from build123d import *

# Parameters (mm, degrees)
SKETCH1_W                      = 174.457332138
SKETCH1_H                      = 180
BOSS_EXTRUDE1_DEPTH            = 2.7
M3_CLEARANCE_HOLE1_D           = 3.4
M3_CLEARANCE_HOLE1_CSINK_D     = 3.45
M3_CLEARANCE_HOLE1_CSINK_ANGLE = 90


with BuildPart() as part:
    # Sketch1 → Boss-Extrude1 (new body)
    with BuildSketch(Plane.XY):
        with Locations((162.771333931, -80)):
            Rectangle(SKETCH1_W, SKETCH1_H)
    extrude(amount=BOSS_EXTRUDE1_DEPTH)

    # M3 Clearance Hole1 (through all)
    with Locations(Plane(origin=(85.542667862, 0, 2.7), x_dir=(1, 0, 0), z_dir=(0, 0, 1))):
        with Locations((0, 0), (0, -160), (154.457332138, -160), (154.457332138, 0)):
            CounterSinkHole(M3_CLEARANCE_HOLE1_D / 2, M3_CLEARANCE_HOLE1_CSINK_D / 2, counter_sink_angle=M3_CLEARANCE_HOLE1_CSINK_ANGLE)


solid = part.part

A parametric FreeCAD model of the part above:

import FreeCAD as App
import Part
import Sketcher
from FreeCAD import Vector
Q = App.Units.Quantity


def add_polygon(sketch, points):
    """Adds a closed chain of lines whose ends are joined by coincident constraints."""
    first, n = sketch.GeometryCount, len(points)
    for a, b in zip(points, points[1:] + points[:1]):
        sketch.addGeometry(Part.LineSegment(App.Vector(*a, 0), App.Vector(*b, 0)), False)
    for i in range(n):
        sketch.addConstraint(Sketcher.Constraint("Coincident", first + i, 2, first + (i + 1) % n, 1))

doc = App.newDocument("Part")
body = doc.addObject("PartDesign::Body", "Body")

# Sketch on XY plane
sketch1 = body.newObject("Sketcher::SketchObject", "Sketch")
sketch1.AttachmentSupport = (doc.getObject("XY_Plane"), [""])
sketch1.MapMode = "FlatFace"
add_polygon(sketch1, [(76, 10), (76, -170), (250, -170), (250, 10)])  # lines 0-3
sketch1.addConstraint(Sketcher.Constraint("Vertical", 0))
sketch1.addConstraint(Sketcher.Constraint("Horizontal", 1))
sketch1.addConstraint(Sketcher.Constraint("Vertical", 2))
sketch1.addConstraint(Sketcher.Constraint("Horizontal", 3))
sketch1.addConstraint(Sketcher.Constraint("DistanceY", 0, 2, 0, 1, Q("180 mm")))
sketch1.addConstraint(Sketcher.Constraint("DistanceY", 0, 2, -1, 1, Q("170 mm")))
sketch1.addConstraint(Sketcher.Constraint("DistanceX", -1, 1, 1, 2, Q("250 mm")))
sketch1.addConstraint(Sketcher.Constraint("DistanceX", 1, 1, 1, 2, Q("174.457332 mm")))
pad1 = body.newObject("PartDesign::Pad", "Pad")
pad1.Profile = sketch1
pad1.Length = 2.7

# Sketch on XY plane
sketch2 = body.newObject("Sketcher::SketchObject", "Sketch001")
sketch2.AttachmentSupport = (doc.getObject("XY_Plane"), [""])
sketch2.MapMode = "FlatFace"
sketch2.AttachmentOffset = App.Placement(Vector(0, 0, 2.7), App.Rotation())
sketch2.addGeometry(Part.Circle(Vector(85.5, 0, 0), Vector(0, 0, 1), 1.7), False)
sketch2.addGeometry(Part.Circle(Vector(85.5, -160, 0), Vector(0, 0, 1), 1.7), False)
sketch2.addGeometry(Part.Circle(Vector(240, -160, 0), Vector(0, 0, 1), 1.7), False)
sketch2.addGeometry(Part.Circle(Vector(240, 0, 0), Vector(0, 0, 1), 1.7), False)
sketch2.addConstraint(Sketcher.Constraint("Equal", 0, 1))
sketch2.addConstraint(Sketcher.Constraint("Equal", 1, 2))
sketch2.addConstraint(Sketcher.Constraint("Equal", 2, 3))
sketch2.addConstraint(Sketcher.Constraint("PointOnObject", 0, 3, -1))
sketch2.addConstraint(Sketcher.Constraint("PointOnObject", 3, 3, -1))
sketch2.addConstraint(Sketcher.Constraint("Horizontal", 1, 3, 2, 3))
sketch2.addConstraint(Sketcher.Constraint("Vertical", 0, 3, 1, 3))
sketch2.addConstraint(Sketcher.Constraint("Vertical", 2, 3, 3, 3))
sketch2.addConstraint(Sketcher.Constraint("Diameter", 0, Q("3.4 mm")))
sketch2.addConstraint(Sketcher.Constraint("DistanceY", 1, 3, -1, 1, Q("160 mm")))
sketch2.addConstraint(Sketcher.Constraint("DistanceX", -1, 1, 2, 3, Q("240 mm")))
sketch2.addConstraint(Sketcher.Constraint("DistanceX", -1, 1, 0, 3, Q("85.542668 mm")))
doc.recompute()
hole = body.newObject("PartDesign::Hole", "Hole")
hole.Profile = sketch2
hole.ThreadType = "None"
hole.Diameter = 3.4
hole.DepthType = "ThroughAll"
hole.HoleCutType = "Countersink"
hole.HoleCutDiameter = 3.45
hole.HoleCutCountersinkAngle = 90

doc.recompute()
